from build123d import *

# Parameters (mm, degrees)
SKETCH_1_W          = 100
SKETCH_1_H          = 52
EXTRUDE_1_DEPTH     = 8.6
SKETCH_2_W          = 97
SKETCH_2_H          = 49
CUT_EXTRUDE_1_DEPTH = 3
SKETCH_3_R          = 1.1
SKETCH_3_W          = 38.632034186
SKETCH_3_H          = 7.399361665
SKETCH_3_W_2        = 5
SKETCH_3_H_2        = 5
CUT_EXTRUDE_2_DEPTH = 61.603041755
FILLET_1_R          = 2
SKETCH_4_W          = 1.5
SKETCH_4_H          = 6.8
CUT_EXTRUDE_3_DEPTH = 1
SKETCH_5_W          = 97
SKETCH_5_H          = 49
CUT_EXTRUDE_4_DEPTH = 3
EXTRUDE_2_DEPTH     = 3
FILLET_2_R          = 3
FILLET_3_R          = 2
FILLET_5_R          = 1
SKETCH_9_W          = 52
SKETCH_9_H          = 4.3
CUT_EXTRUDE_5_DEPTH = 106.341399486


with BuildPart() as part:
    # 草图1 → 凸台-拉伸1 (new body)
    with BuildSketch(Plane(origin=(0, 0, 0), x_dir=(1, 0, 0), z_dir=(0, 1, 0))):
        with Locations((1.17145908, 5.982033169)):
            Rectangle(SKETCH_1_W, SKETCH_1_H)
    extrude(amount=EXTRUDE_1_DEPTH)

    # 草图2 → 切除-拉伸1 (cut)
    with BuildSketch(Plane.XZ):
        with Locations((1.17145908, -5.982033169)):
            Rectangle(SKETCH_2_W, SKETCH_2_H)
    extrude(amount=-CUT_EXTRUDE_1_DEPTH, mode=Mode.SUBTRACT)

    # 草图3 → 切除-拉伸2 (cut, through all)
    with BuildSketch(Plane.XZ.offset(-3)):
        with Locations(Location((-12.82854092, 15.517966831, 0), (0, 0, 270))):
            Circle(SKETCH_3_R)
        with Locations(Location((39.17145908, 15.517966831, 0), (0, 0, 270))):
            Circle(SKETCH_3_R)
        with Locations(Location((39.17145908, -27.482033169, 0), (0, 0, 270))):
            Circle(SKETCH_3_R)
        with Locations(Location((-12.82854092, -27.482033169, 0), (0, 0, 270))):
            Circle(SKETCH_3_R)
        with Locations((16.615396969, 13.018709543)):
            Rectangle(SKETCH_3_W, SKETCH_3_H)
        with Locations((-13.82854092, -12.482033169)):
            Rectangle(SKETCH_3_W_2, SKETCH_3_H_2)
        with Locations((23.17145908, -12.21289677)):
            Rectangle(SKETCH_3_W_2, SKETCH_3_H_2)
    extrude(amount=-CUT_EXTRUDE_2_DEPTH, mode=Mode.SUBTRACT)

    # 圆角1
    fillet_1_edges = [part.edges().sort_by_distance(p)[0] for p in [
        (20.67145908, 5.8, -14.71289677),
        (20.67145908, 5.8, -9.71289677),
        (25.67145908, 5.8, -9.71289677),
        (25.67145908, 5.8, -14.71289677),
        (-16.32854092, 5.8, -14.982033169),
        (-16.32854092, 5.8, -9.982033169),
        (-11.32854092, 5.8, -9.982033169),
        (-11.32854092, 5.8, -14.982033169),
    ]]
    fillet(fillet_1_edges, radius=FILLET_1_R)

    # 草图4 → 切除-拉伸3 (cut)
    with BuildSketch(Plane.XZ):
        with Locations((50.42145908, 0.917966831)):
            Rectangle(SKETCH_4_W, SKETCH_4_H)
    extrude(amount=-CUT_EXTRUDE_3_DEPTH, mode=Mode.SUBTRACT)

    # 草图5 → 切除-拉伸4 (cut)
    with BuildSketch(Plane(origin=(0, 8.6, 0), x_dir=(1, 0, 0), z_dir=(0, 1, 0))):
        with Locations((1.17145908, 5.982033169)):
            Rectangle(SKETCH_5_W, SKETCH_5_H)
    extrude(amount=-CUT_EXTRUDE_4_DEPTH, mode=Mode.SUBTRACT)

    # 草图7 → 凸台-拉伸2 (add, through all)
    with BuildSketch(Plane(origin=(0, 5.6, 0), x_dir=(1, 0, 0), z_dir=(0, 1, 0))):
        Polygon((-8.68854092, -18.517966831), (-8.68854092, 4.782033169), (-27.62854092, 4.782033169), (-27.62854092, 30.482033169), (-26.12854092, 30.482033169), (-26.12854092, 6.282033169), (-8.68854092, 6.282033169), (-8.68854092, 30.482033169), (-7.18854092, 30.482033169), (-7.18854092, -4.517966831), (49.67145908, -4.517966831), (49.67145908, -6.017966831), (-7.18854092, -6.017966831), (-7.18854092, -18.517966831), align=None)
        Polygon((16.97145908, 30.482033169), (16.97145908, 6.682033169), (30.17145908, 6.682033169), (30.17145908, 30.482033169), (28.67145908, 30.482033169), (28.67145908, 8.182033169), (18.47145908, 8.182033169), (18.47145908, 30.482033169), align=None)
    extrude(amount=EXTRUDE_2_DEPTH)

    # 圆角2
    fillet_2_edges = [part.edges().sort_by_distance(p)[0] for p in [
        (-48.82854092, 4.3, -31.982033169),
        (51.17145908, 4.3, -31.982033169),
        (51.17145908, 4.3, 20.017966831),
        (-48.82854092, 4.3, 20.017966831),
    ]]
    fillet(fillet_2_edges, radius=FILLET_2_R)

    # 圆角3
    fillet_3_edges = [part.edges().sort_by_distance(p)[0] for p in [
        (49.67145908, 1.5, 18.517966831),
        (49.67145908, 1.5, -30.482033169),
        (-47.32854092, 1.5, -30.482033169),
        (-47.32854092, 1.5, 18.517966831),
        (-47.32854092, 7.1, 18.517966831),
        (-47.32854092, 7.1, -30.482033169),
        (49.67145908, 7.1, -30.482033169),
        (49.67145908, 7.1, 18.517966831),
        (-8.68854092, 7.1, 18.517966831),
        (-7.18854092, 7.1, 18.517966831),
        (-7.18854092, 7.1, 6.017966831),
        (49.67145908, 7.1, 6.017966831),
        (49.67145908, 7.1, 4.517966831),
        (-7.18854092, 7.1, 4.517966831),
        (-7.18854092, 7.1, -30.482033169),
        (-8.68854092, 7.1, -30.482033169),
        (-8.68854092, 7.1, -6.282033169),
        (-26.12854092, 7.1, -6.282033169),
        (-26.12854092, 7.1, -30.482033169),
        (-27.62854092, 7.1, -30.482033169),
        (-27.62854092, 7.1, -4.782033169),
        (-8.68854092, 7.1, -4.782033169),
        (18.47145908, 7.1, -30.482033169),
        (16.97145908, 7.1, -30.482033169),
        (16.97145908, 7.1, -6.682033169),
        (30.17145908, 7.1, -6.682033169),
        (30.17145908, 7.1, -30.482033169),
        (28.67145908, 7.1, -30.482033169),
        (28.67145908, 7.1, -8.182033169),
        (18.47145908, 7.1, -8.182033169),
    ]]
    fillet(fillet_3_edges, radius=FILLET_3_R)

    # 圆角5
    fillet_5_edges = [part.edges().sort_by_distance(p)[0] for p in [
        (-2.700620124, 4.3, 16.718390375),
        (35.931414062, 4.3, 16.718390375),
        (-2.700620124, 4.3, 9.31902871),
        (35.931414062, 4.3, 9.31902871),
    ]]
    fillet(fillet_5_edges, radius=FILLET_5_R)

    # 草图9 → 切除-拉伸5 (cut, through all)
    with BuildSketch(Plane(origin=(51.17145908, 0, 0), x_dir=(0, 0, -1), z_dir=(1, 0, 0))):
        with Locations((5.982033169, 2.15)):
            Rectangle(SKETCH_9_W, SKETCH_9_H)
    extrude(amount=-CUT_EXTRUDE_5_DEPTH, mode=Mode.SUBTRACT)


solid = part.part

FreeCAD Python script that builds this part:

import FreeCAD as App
import Part
import Sketcher


def edges_at(feature, points):
    """Names of the edges that pass closest to the given points."""
    edges = feature.Shape.Edges
    near = lambda p: min(range(len(edges)), key=lambda i: edges[i].distToShape(Part.Vertex(*p))[0])
    return sorted({f"Edge{near(p) + 1}" for p in points})


def add_polygon(sketch, points):
    """Adds a closed chain of lines whose ends are joined by coincident constraints."""
    first, n = sketch.GeometryCount, len(points)
    for a, b in zip(points, points[1:] + points[:1]):
        sketch.addGeometry(Part.LineSegment(App.Vector(*a, 0), App.Vector(*b, 0)), False)
    for i in range(n):
        sketch.addConstraint(Sketcher.Constraint("Coincident", first + i, 2, first + (i + 1) % n, 1))

doc = App.newDocument("Part")
body = doc.addObject("PartDesign::Body", "Body")

# Sketch on XZ plane
sketch1 = body.newObject("Sketcher::SketchObject", "Sketch")
sketch1.AttachmentSupport = (doc.getObject("XZ_Plane"), [""])
sketch1.MapMode = "FlatFace"
add_polygon(sketch1, [(-49, -32), (-49, 20), (51, 20), (51, -32)])  # lines 0-3
sketch1.addConstraint([
    Sketcher.Constraint("Vertical", 0),
    Sketcher.Constraint("Horizontal", 1),
    Sketcher.Constraint("Vertical", 2),
    Sketcher.Constraint("Horizontal", 3),
    Sketcher.Constraint("DistanceX", 1, 1, 1, 2, 100.0),
    Sketcher.Constraint("DistanceY", 0, 1, 0, 2, 52.0),
    Sketcher.Constraint("DistanceX", 0, 2, -1, 1, 48.828541),
    Sketcher.Constraint("DistanceY", -1, 1, 0, 2, 20.017967),
])
pad1 = body.newObject("PartDesign::Pad", "Pad")
pad1.Profile = sketch1
pad1.Length = 8.6
pad1.Reversed = True

# Sketch on XZ plane
sketch2 = body.newObject("Sketcher::SketchObject", "Sketch001")
sketch2.AttachmentSupport = (doc.getObject("XZ_Plane"), [""])
sketch2.MapMode = "FlatFace"
add_polygon(sketch2, [(-47, 19), (-47, -30), (50, -30), (50, 19)])  # lines 0-3
sketch2.addConstraint([
    Sketcher.Constraint("Vertical", 0),
    Sketcher.Constraint("Horizontal", 1),
    Sketcher.Constraint("Vertical", 2),
    Sketcher.Constraint("Horizontal", 3),
    Sketcher.Constraint("DistanceX", 1, 1, 1, 2, 97.0),
    Sketcher.Constraint("DistanceY", 0, 2, 0, 1, 49.0),
    Sketcher.Constraint("DistanceX", 0, 2, -1, 1, 47.328541),
    Sketcher.Constraint("DistanceY", 0, 2, -1, 1, 30.482033),
])
pocket1 = body.newObject("PartDesign::Pocket", "Pocket")
pocket1.Profile = sketch2
pocket1.Length = 3

# Sketch on XZ plane
sketch3 = body.newObject("Sketcher::SketchObject", "Sketch002")
sketch3.AttachmentSupport = (doc.getObject("XZ_Plane"), [""])
sketch3.MapMode = "FlatFace"
sketch3.AttachmentOffset = App.Placement(App.Vector(0, 0, -3), App.Rotation())
sketch3.addGeometry(Part.Circle(App.Vector(-12.8, 15.5, 0), App.Vector(0, 0, 1), 1.1), False)  # 0
sketch3.addGeometry(Part.Circle(App.Vector(39.2, 15.5, 0), App.Vector(0, 0, 1), 1.1), False)  # 1
sketch3.addGeometry(Part.Circle(App.Vector(39.2, -27.5, 0), App.Vector(0, 0, 1), 1.1), False)  # 2
sketch3.addGeometry(Part.Circle(App.Vector(-12.8, -27.5, 0), App.Vector(0, 0, 1), 1.1), False)  # 3
add_polygon(sketch3, [(-2.7, 16.7), (-2.7, 9.3), (35.9, 9.3), (35.9, 16.7)])  # lines 4-7
add_polygon(sketch3, [(-16.3, -10), (-16.3, -15), (-11.3, -15), (-11.3, -10)])  # lines 8-11
add_polygon(sketch3, [(20.7, -9.7), (20.7, -14.7), (25.7, -14.7), (25.7, -9.7)])  # lines 12-15
sketch3.addConstraint([
    Sketcher.Constraint("Vertical", 4),
    Sketcher.Constraint("Horizontal", 5),
    Sketcher.Constraint("Vertical", 6),
    Sketcher.Constraint("Horizontal", 7),
    Sketcher.Constraint("Vertical", 8),
    Sketcher.Constraint("Horizontal", 9),
    Sketcher.Constraint("Vertical", 10),
    Sketcher.Constraint("Horizontal", 11),
    Sketcher.Constraint("Vertical", 12),
    Sketcher.Constraint("Horizontal", 13),
    Sketcher.Constraint("Vertical", 14),
    Sketcher.Constraint("Horizontal", 15),
    Sketcher.Constraint("Equal", 0, 1),
    Sketcher.Constraint("Equal", 1, 2),
    Sketcher.Constraint("Equal", 2, 3),
    Sketcher.Constraint("Horizontal", 0, 3, 1, 3),
    Sketcher.Constraint("Horizontal", 2, 3, 3, 3),
    Sketcher.Constraint("Vertical", 1, 3, 2, 3),
    Sketcher.Constraint("Vertical", 0, 3, 3, 3),
    Sketcher.Constraint("Equal", 11, 13),
    Sketcher.Constraint("Equal", 15, 8),
    Sketcher.Constraint("Equal", 10, 12),
    Sketcher.Constraint("Diameter", 0, 2.2),
    Sketcher.Constraint("DistanceX", 9, 1, 9, 2, 5.0),
    Sketcher.Constraint("DistanceX", 0, 3, 1, 3, 52.0),
    Sketcher.Constraint("DistanceY", 2, 3, 1, 3, 43.0),
    Sketcher.Constraint("DistanceX", 9, 2, 12, 2, 32.0),
    Sketcher.Constraint("DistanceX", 8, 2, 3, 3, 3.5),
    Sketcher.Constraint("DistanceY", 3, 3, 8, 2, 12.5),
    Sketcher.Constraint("DistanceY", 4, 2, 4, 1, 7.399362),
    Sketcher.Constraint("DistanceX", 5, 1, 5, 2, 38.632034),
    Sketcher.Constraint("DistanceX", 0, 3, -1, 1, 12.828541),
    Sketcher.Constraint("DistanceX", 4, 2, -1, 1, 2.70062),
    Sketcher.Constraint("DistanceY", -1, 1, 4, 2, 9.319029),
    Sketcher.Constraint("DistanceY", 4, 2, 0, 3, 6.198938),
    Sketcher.Constraint("DistanceY", 12, 2, -1, 1, 14.712897),
])
pocket2 = body.newObject("PartDesign::Pocket", "Pocket001")
pocket2.Profile = sketch3
pocket2.Type = "ThroughAll"
doc.recompute()

fillet = body.newObject("PartDesign::Fillet", "Fillet")
fillet.Base = (pocket2, edges_at(pocket2, [
    (20.671, 5.8, -14.713),
    (20.671, 5.8, -9.713),
    (25.671, 5.8, -9.713),
    (25.671, 5.8, -14.713),
    (-16.329, 5.8, -14.982),
    (-16.329, 5.8, -9.982),
    (-11.329, 5.8, -9.982),
    (-11.329, 5.8, -14.982),
]))
fillet.Radius = 2

# Sketch on XZ plane
sketch4 = body.newObject("Sketcher::SketchObject", "Sketch003")
sketch4.AttachmentSupport = (doc.getObject("XZ_Plane"), [""])
sketch4.MapMode = "FlatFace"
add_polygon(sketch4, [(49.7, 4.3), (49.7, -2.5), (51.2, -2.5), (51.2, 4.3)])  # lines 0-3
sketch4.addConstraint([
    Sketcher.Constraint("Vertical", 0),
    Sketcher.Constraint("Horizontal", 1),
    Sketcher.Constraint("Vertical", 2),
    Sketcher.Constraint("Horizontal", 3),
    Sketcher.Constraint("DistanceX", 1, 1, 1, 2, 1.5),
    Sketcher.Constraint("DistanceY", 0, 2, 0, 1, 6.8),
    Sketcher.Constraint("DistanceX", -1, 1, 0, 2, 49.671459),
    Sketcher.Constraint("DistanceY", 0, 2, -1, 1, 2.482033),
])
pocket3 = body.newObject("PartDesign::Pocket", "Pocket002")
pocket3.Profile = sketch4
pocket3.Length = 1

# Sketch on XZ plane
sketch5 = body.newObject("Sketcher::SketchObject", "Sketch004")
sketch5.AttachmentSupport = (doc.getObject("XZ_Plane"), [""])
sketch5.MapMode = "FlatFace"
sketch5.AttachmentOffset = App.Placement(App.Vector(0, 0, -8.6), App.Rotation())
add_polygon(sketch5, [(-47, -30), (-47, 19), (50, 19), (50, -30)])  # lines 0-3
sketch5.addConstraint([
    Sketcher.Constraint("Vertical", 0),
    Sketcher.Constraint("Horizontal", 1),
    Sketcher.Constraint("Vertical", 2),
    Sketcher.Constraint("Horizontal", 3),
    Sketcher.Constraint("DistanceX", 1, 1, 1, 2, 97.0),
    Sketcher.Constraint("DistanceY", 0, 1, 0, 2, 49.0),
    Sketcher.Constraint("DistanceX", 0, 2, -1, 1, 47.328541),
    Sketcher.Constraint("DistanceY", -1, 1, 0, 2, 18.517967),
])
pocket4 = body.newObject("PartDesign::Pocket", "Pocket003")
pocket4.Profile = sketch5
pocket4.Length = 3
pocket4.Reversed = True

# Sketch on XZ plane
sketch6 = body.newObject("Sketcher::SketchObject", "Sketch005")
sketch6.AttachmentSupport = (doc.getObject("XZ_Plane"), [""])
sketch6.MapMode = "FlatFace"
sketch6.AttachmentOffset = App.Placement(App.Vector(0, 0, -5.6), App.Rotation())
add_polygon(sketch6, [(-8.7, -4.8), (-8.7, 18.5), (-7.2, 18.5), (-7.2, 6), (49.7, 6), (49.7, 4.5), (-7.2, 4.5), (-7.2, -30.5), (-8.7, -30.5), (-8.7, -6.3), (-26.1, -6.3), (-26.1, -30.5), (-27.6, -30.5), (-27.6, -4.8)])  # lines 0-13
add_polygon(sketch6, [(17, -30.5), (17, -6.7), (30.2, -6.7), (30.2, -30.5), (28.7, -30.5), (28.7, -8.2), (18.5, -8.2), (18.5, -30.5)])  # lines 14-21
sketch6.addConstraint([
    Sketcher.Constraint("Vertical", 0),
    Sketcher.Constraint("Horizontal", 1),
    Sketcher.Constraint("Vertical", 2),
    Sketcher.Constraint("Horizontal", 3),
    Sketcher.Constraint("Vertical", 4),
    Sketcher.Constraint("Horizontal", 5),
    Sketcher.Constraint("Vertical", 6),
    Sketcher.Constraint("Horizontal", 7),
    Sketcher.Constraint("Vertical", 8),
    Sketcher.Constraint("Horizontal", 9),
    Sketcher.Constraint("Vertical", 10),
    Sketcher.Constraint("Horizontal", 11),
    Sketcher.Constraint("Vertical", 12),
    Sketcher.Constraint("Horizontal", 13),
    Sketcher.Constraint("Vertical", 14),
    Sketcher.Constraint("Horizontal", 15),
    Sketcher.Constraint("Vertical", 16),
    Sketcher.Constraint("Horizontal", 17),
    Sketcher.Constraint("Vertical", 18),
    Sketcher.Constraint("Horizontal", 19),
    Sketcher.Constraint("Vertical", 20),
    Sketcher.Constraint("Horizontal", 21),
    Sketcher.Constraint("Horizontal", 7, 2, 10, 2),
    Sketcher.Constraint("Horizontal", 11, 2, 16, 2),
    Sketcher.Constraint("Horizontal", 17, 2, 20, 2),
    Sketcher.Constraint("Vertical", 2, 2, 5, 2),
    Sketcher.Constraint("Vertical", 0, 2, 7, 2),
    Sketcher.Constraint("Equal", 7, 11),
    Sketcher.Constraint("Equal", 11, 17),
    Sketcher.Constraint("Equal", 17, 21),
    Sketcher.Constraint("Equal", 21, 4),
    Sketcher.Constraint("DistanceY", 6, 2, 6, 1, 35.0),
    Sketcher.Constraint("DistanceX", 1, 1, 1, 2, 1.5),
    Sketcher.Constraint("DistanceX", 15, 1, 15, 2, 13.2),
    Sketcher.Constraint("DistanceY", 0, 1, 0, 2, 23.3),
    Sketcher.Constraint("DistanceY", 2, 2, 2, 1, 12.5),
    Sketcher.Constraint("DistanceY", 8, 1, 8, 2, 24.2),
    Sketcher.Constraint("DistanceY", 14, 1, 14, 2, 23.8),
    Sketcher.Constraint("DistanceY", 18, 1, 18, 2, 22.3),
    Sketcher.Constraint("DistanceX", 18, 2, 4, 2, 21.0),
    Sketcher.Constraint("DistanceX", 3, 1, 3, 2, 56.86),
    Sketcher.Constraint("DistanceX", 9, 2, 9, 1, 17.44),
    Sketcher.Constraint("DistanceX", 0, 2, -1, 1, 8.688541),
    Sketcher.Constraint("DistanceY", -1, 1, 0, 2, 18.517967),
])
pad2 = body.newObject("PartDesign::Pad", "Pad001")
pad2.Profile = sketch6
pad2.Length = 3
pad2.Reversed = True
doc.recompute()

fillet2 = body.newObject("PartDesign::Fillet", "Fillet001")
fillet2.Base = (pad2, edges_at(pad2, [
    (-48.829, 4.3, -31.982),
    (51.171, 4.3, -31.982),
    (51.171, 4.3, 20.018),
    (-48.829, 4.3, 20.018),
]))
fillet2.Radius = 3
doc.recompute()

fillet3 = body.newObject("PartDesign::Fillet", "Fillet002")
fillet3.Base = (fillet2, edges_at(fillet2, [
    (49.671, 1.5, 18.518),
    (49.671, 1.5, -30.482),
    (-47.329, 1.5, -30.482),
    (-47.329, 1.5, 18.518),
    (-47.329, 7.1, 18.518),
    (-47.329, 7.1, -30.482),
    (49.671, 7.1, -30.482),
    (49.671, 7.1, 18.518),
    (-8.689, 7.1, 18.518),
    (-7.189, 7.1, 18.518),
    (-7.189, 7.1, 6.018),
    (49.671, 7.1, 6.018),
    (49.671, 7.1, 4.518),
    (-7.189, 7.1, 4.518),
    (-7.189, 7.1, -30.482),
    (-8.689, 7.1, -30.482),
    (-8.689, 7.1, -6.282),
    (-26.129, 7.1, -6.282),
    (-26.129, 7.1, -30.482),
    (-27.629, 7.1, -30.482),
    (-27.629, 7.1, -4.782),
    (-8.689, 7.1, -4.782),
    (18.471, 7.1, -30.482),
    (16.971, 7.1, -30.482),
    (16.971, 7.1, -6.682),
    (30.171, 7.1, -6.682),
    (30.171, 7.1, -30.482),
    (28.671, 7.1, -30.482),
    (28.671, 7.1, -8.182),
    (18.471, 7.1, -8.182),
]))
fillet3.Radius = 2
doc.recompute()

fillet4 = body.newObject("PartDesign::Fillet", "Fillet003")
fillet4.Base = (fillet3, edges_at(fillet3, [
    (-2.701, 4.3, 16.718),
    (35.931, 4.3, 16.718),
    (-2.701, 4.3, 9.319),
    (35.931, 4.3, 9.319),
]))
fillet4.Radius = 1

# Sketch on YZ plane
sketch7 = body.newObject("Sketcher::SketchObject", "Sketch006")
sketch7.AttachmentSupport = (doc.getObject("YZ_Plane"), [""])
sketch7.MapMode = "FlatFace"
sketch7.AttachmentOffset = App.Placement(App.Vector(0, 0, 51.171459), App.Rotation())
add_polygon(sketch7, [(4.3, 20), (0, 20), (0, -32), (4.3, -32)])  # lines 0-3
sketch7.addConstraint([
    Sketcher.Constraint("Horizontal", 0),
    Sketcher.Constraint("Vertical", 1),
    Sketcher.Constraint("Horizontal", 2),
    Sketcher.Constraint("Vertical", 3),
    Sketcher.Constraint("PointOnObject", 0, 2, -2),
    Sketcher.Constraint("DistanceY", 1, 2, 1, 1, 52.0),
    Sketcher.Constraint("DistanceX", 0, 2, 0, 1, 4.3),
    Sketcher.Constraint("DistanceY", -1, 1, 0, 2, 20.017967),
])
pocket5 = body.newObject("PartDesign::Pocket", "Pocket004")
pocket5.Profile = sketch7
pocket5.Type = "ThroughAll"

doc.recompute()
